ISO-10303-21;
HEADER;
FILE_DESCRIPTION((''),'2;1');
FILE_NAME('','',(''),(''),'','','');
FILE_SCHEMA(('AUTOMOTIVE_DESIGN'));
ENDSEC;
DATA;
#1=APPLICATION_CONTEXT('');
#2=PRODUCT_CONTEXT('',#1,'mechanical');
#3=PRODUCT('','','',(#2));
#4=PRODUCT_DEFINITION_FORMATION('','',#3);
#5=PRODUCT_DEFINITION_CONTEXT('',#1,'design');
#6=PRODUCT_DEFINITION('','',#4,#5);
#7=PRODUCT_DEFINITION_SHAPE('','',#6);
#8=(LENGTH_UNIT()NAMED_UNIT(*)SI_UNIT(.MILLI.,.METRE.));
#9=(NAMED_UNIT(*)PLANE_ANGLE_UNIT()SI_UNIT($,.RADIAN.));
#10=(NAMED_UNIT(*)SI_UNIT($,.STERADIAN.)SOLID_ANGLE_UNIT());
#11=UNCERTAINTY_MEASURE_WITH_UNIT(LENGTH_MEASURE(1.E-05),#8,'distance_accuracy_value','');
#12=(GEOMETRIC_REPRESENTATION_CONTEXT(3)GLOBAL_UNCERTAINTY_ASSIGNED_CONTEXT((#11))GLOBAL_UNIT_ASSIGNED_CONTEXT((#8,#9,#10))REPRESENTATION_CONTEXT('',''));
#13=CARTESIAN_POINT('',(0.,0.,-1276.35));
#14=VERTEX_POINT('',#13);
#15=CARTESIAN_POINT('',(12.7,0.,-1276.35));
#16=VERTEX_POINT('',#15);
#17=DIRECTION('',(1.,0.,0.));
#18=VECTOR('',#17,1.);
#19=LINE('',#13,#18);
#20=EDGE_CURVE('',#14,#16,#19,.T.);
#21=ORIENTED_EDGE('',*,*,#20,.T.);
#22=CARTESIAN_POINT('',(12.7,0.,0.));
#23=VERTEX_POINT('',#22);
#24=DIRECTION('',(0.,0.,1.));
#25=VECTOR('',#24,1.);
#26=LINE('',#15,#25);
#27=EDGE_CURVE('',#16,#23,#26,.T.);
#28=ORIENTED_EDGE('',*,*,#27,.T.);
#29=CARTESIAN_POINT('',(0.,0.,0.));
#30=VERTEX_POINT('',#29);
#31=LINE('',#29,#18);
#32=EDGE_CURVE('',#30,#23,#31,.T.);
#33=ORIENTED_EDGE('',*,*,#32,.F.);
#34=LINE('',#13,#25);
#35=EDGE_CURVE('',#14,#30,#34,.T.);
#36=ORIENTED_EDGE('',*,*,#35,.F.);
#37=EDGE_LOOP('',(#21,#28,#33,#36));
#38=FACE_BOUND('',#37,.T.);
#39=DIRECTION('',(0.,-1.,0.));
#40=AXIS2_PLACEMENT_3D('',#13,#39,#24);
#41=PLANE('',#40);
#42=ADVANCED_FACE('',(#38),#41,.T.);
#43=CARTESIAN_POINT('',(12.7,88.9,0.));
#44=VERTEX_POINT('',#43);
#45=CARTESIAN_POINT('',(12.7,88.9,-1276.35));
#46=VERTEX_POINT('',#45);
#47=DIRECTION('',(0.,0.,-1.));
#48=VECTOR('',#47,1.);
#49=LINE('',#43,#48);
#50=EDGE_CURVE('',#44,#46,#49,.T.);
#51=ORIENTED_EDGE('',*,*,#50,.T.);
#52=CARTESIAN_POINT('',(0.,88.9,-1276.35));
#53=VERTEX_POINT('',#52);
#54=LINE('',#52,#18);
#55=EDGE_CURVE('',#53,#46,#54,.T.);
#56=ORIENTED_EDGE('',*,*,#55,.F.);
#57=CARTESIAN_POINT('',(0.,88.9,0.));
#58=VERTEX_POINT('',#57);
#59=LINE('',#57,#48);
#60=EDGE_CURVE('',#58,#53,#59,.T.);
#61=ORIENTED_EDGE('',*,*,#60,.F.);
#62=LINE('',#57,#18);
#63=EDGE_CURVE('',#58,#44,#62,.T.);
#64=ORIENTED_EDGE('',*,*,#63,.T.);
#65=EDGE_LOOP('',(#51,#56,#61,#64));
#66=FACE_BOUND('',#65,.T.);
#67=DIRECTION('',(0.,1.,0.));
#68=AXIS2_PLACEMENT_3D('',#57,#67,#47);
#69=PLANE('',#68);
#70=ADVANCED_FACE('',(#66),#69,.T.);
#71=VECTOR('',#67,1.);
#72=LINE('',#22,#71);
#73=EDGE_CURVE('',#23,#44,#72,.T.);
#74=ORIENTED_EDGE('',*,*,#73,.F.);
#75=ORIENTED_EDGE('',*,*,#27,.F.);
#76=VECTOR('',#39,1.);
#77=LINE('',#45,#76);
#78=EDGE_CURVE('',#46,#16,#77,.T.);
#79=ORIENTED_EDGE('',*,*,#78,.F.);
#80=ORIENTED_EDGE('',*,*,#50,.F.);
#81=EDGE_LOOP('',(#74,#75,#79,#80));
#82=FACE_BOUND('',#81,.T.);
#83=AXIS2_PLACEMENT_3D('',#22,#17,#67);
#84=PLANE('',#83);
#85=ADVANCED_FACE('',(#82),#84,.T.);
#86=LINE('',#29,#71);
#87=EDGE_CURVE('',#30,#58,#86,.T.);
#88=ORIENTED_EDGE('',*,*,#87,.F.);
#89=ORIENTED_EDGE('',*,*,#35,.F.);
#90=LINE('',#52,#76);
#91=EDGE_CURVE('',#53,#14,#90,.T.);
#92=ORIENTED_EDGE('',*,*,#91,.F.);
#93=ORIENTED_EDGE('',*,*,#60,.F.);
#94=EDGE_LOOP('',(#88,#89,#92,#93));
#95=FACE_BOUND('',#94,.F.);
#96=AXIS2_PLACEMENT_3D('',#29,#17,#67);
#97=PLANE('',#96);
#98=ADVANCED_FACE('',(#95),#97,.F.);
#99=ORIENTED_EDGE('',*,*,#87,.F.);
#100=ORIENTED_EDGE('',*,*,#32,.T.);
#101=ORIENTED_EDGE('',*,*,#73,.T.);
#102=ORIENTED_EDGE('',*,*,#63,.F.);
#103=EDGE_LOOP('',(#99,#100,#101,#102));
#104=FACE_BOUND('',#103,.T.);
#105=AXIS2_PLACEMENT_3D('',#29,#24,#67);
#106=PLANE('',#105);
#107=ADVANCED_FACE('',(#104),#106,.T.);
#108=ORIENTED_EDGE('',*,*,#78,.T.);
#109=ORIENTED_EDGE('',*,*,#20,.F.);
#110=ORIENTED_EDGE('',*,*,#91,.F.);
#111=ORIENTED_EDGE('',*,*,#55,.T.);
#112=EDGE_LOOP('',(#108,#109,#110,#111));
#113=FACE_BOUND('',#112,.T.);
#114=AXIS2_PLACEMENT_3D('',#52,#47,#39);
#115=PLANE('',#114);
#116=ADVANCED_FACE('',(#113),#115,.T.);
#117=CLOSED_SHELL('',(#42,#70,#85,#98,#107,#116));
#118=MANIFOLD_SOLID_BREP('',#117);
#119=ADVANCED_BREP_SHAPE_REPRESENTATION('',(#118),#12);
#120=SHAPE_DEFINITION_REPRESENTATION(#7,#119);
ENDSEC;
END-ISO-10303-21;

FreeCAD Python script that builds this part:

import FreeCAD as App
import Part
import Sketcher

V = App.Vector
Q = App.Units.Quantity


def add_polygon(sketch, points):
    """Adds a closed chain of lines whose ends are joined by coincident constraints."""
    first, n = sketch.GeometryCount, len(points)
    for a, b in zip(points, points[1:] + points[:1]):
        sketch.addGeometry(Part.LineSegment(App.Vector(*a, 0), App.Vector(*b, 0)), False)
    for i in range(n):
        sketch.addConstraint(Sketcher.Constraint("Coincident", first + i, 2, first + (i + 1) % n, 1))

doc = App.newDocument("Part")
body = doc.addObject("PartDesign::Body", "Body")

# Sketch on YZ plane
sketch1 = body.newObject("Sketcher::SketchObject", "Sketch")
sketch1.AttachmentSupport = (doc.getObject("YZ_Plane"), [""])
sketch1.MapMode = "FlatFace"
add_polygon(sketch1, [(89, 0), (0, 0), (0, -1276), (89, -1276)])  # lines 0-3
sketch1.addConstraint([
    Sketcher.Constraint("Horizontal", 0),
    Sketcher.Constraint("Vertical", 1),
    Sketcher.Constraint("Horizontal", 2),
    Sketcher.Constraint("Vertical", 3),
    Sketcher.Constraint("Coincident", 0, 2, -1, 1),
    Sketcher.Constraint("DistanceX", 0, 2, 0, 1, Q("3.5 in")),
    Sketcher.Constraint("DistanceY", 1, 2, 1, 1, Q("50.25 in")),
])
pad1 = body.newObject("PartDesign::Pad", "Pad")
pad1.Profile = sketch1
pad1.Length = Q("0.5 in")

doc.recompute()
